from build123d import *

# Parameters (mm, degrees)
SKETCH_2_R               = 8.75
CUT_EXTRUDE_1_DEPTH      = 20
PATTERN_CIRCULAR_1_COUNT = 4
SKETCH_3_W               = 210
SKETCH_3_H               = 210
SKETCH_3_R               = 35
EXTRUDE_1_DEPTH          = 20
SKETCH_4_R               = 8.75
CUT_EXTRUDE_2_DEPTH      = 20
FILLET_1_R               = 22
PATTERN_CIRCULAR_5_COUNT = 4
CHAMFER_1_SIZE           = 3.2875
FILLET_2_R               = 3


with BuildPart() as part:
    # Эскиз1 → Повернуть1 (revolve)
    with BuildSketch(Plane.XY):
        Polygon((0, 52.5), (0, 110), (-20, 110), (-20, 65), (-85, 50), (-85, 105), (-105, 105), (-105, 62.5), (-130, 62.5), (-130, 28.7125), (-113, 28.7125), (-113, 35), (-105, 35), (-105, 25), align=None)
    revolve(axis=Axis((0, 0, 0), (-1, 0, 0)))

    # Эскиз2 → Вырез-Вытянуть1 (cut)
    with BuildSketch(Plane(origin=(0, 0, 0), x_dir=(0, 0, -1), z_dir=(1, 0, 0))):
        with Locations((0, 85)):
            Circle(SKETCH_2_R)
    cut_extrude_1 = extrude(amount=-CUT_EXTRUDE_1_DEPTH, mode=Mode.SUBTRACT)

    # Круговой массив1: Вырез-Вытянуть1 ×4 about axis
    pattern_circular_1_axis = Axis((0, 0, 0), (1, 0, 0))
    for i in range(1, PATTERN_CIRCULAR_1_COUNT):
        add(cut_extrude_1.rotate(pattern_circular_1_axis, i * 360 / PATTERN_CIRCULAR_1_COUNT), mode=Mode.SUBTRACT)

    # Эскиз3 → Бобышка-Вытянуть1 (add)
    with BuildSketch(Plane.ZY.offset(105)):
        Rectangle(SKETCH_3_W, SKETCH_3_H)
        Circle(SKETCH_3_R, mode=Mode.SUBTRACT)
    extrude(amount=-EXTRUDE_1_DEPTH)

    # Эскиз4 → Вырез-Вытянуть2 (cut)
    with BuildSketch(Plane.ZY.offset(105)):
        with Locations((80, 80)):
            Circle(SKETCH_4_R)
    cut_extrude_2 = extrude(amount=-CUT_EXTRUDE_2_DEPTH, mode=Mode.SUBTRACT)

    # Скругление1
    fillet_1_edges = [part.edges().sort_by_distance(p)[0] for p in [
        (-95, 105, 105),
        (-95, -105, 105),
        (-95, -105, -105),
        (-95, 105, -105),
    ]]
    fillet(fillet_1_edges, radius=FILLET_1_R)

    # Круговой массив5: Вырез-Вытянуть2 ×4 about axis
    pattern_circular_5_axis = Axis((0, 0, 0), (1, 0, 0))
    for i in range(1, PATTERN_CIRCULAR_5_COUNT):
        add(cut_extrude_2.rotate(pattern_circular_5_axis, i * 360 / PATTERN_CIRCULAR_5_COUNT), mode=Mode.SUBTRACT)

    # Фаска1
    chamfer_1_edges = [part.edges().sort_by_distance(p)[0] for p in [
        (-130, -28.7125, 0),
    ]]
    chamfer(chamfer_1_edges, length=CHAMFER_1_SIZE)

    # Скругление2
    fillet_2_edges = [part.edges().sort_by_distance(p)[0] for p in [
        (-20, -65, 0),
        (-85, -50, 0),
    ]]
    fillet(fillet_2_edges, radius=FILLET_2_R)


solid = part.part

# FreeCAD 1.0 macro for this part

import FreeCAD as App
import Part
import Sketcher
from FreeCAD import Vector
Q = App.Units.Quantity


def edges_at(feature, points):
    """Names of the edges that pass closest to the given points."""
    edges = feature.Shape.Edges
    near = lambda p: min(range(len(edges)), key=lambda i: edges[i].distToShape(Part.Vertex(*p))[0])
    return sorted({f"Edge{near(p) + 1}" for p in points})

doc = App.newDocument("Part")
params = doc.addObject("Spreadsheet::Sheet", "Params")
for row, (alias, value) in enumerate([
    ("sketch1_width", "20 mm"),
    ("sketch1_width2", "25 mm"),
    ("sketch1_width3", "17 mm"),
    ("sketch1_height", "45 mm"),
    ("sketch1_height2", "55 mm"),
    ("revolution_angle", "360 deg"),
    ("sketch2_diameter", "17.5 mm"),
    ("pocket1_length", "20 mm"),
    ("sketch3_diameter", "70 mm"),
    ("sketch3_width", "210 mm"),
    ("pad1_length", "20 mm"),
    ("sketch4_diameter", "17.5 mm"),
    ("pocket2_length", "20 mm"),
    ("fillet_radius", "22 mm"),
    ("chamfer_size", "3.2875 mm"),
    ("fillet2_radius", "3 mm"),
], start=1):
    params.set(f"A{row}", alias)
    params.set(f"B{row}", "=" + value)
    params.setAlias(f"B{row}", alias)

body = doc.addObject("PartDesign::Body", "Body")

sketch1 = doc.addObject("Sketcher::SketchObject", "Sketch")
body.addObject(sketch1)
sketch1.AttachmentSupport = (doc.XY_Plane, [""])
sketch1.MapMode = "FlatFace"
sketch1.addGeometry(Part.LineSegment(Vector(0, 52, 0), Vector(0, 110, 0)), False)
sketch1.addGeometry(Part.LineSegment(Vector(0, 110, 0), Vector(-20, 110, 0)), False)
sketch1.addGeometry(Part.LineSegment(Vector(-20, 110, 0), Vector(-20, 65, 0)), False)
sketch1.addGeometry(Part.LineSegment(Vector(-20, 65, 0), Vector(-85, 50, 0)), False)
sketch1.addGeometry(Part.LineSegment(Vector(-85, 50, 0), Vector(-85, 105, 0)), False)
sketch1.addGeometry(Part.LineSegment(Vector(-85, 105, 0), Vector(-105, 105, 0)), False)
sketch1.addGeometry(Part.LineSegment(Vector(-105, 105, 0), Vector(-105, 62, 0)), False)
sketch1.addGeometry(Part.LineSegment(Vector(-105, 62, 0), Vector(-130, 62, 0)), False)
sketch1.addGeometry(Part.LineSegment(Vector(-130, 62, 0), Vector(-130, 29, 0)), False)
sketch1.addGeometry(Part.LineSegment(Vector(-130, 29, 0), Vector(-113, 29, 0)), False)
sketch1.addGeometry(Part.LineSegment(Vector(-113, 29, 0), Vector(-113, 35, 0)), False)
sketch1.addGeometry(Part.LineSegment(Vector(-113, 35, 0), Vector(-105, 35, 0)), False)
sketch1.addGeometry(Part.LineSegment(Vector(-105, 35, 0), Vector(-105, 25, 0)), False)
sketch1.addGeometry(Part.LineSegment(Vector(-105, 25, 0), Vector(0, 52, 0)), False)
sketch1.addConstraint(Sketcher.Constraint("Coincident", 0, 2, 1, 1))
sketch1.addConstraint(Sketcher.Constraint("Coincident", 1, 2, 2, 1))
sketch1.addConstraint(Sketcher.Constraint("Coincident", 2, 2, 3, 1))
sketch1.addConstraint(Sketcher.Constraint("Coincident", 3, 2, 4, 1))
sketch1.addConstraint(Sketcher.Constraint("Coincident", 4, 2, 5, 1))
sketch1.addConstraint(Sketcher.Constraint("Coincident", 5, 2, 6, 1))
sketch1.addConstraint(Sketcher.Constraint("Coincident", 6, 2, 7, 1))
sketch1.addConstraint(Sketcher.Constraint("Coincident", 7, 2, 8, 1))
sketch1.addConstraint(Sketcher.Constraint("Coincident", 8, 2, 9, 1))
sketch1.addConstraint(Sketcher.Constraint("Coincident", 9, 2, 10, 1))
sketch1.addConstraint(Sketcher.Constraint("Coincident", 10, 2, 11, 1))
sketch1.addConstraint(Sketcher.Constraint("Coincident", 11, 2, 12, 1))
sketch1.addConstraint(Sketcher.Constraint("Coincident", 12, 2, 13, 1))
sketch1.addConstraint(Sketcher.Constraint("Coincident", 13, 2, 0, 1))
sketch1.addConstraint(Sketcher.Constraint("Vertical", 0))
sketch1.addConstraint(Sketcher.Constraint("Horizontal", 1))
sketch1.addConstraint(Sketcher.Constraint("Vertical", 2))
sketch1.addConstraint(Sketcher.Constraint("Vertical", 4))
sketch1.addConstraint(Sketcher.Constraint("Horizontal", 5))
sketch1.addConstraint(Sketcher.Constraint("Vertical", 6))
sketch1.addConstraint(Sketcher.Constraint("Horizontal", 7))
sketch1.addConstraint(Sketcher.Constraint("Vertical", 8))
sketch1.addConstraint(Sketcher.Constraint("Horizontal", 9))
sketch1.addConstraint(Sketcher.Constraint("Vertical", 10))
sketch1.addConstraint(Sketcher.Constraint("Horizontal", 11))
sketch1.addConstraint(Sketcher.Constraint("Vertical", 12))
sketch1.addConstraint(Sketcher.Constraint("PointOnObject", 0, 2, -2))
sketch1.addConstraint(Sketcher.Constraint("Vertical", 6, 2, 11, 2))
sketch1.addConstraint(Sketcher.Constraint("Equal", 1, 5))
sketch1.addConstraint(Sketcher.Constraint("DistanceX", 1, 2, 1, 1, Q("20 mm")))
sketch1.addConstraint(Sketcher.Constraint("DistanceX", 7, 2, 7, 1, Q("25 mm")))
sketch1.addConstraint(Sketcher.Constraint("DistanceX", 9, 1, 9, 2, Q("17 mm")))
sketch1.addConstraint(Sketcher.Constraint("DistanceY", 2, 2, 2, 1, Q("45 mm")))
sketch1.addConstraint(Sketcher.Constraint("DistanceY", 4, 1, 4, 2, Q("55 mm")))
sketch1.addConstraint(Sketcher.Constraint("DistanceY", 12, 2, 12, 1, Q("10 mm")))
sketch1.addConstraint(Sketcher.Constraint("DistanceY", 0, 1, 0, 2, Q("57.5 mm")))
sketch1.addConstraint(Sketcher.Constraint("DistanceY", 6, 2, 6, 1, Q("42.5 mm")))
sketch1.addConstraint(Sketcher.Constraint("DistanceY", -1, 1, 0, 2, Q("110 mm")))
sketch1.addConstraint(Sketcher.Constraint("DistanceX", 3, 2, -1, 1, Q("85 mm")))
sketch1.addConstraint(Sketcher.Constraint("DistanceY", -1, 1, 3, 2, Q("50 mm")))
sketch1.addConstraint(Sketcher.Constraint("DistanceY", -1, 1, 10, 2, Q("35 mm")))
sketch1.addConstraint(Sketcher.Constraint("DistanceY", 8, 2, 8, 1, Q("33.7875 mm")))
sketch1.setExpression("Constraints[29]", "Params.sketch1_width")
sketch1.setExpression("Constraints[30]", "Params.sketch1_width2")
sketch1.setExpression("Constraints[31]", "Params.sketch1_width3")
sketch1.setExpression("Constraints[32]", "Params.sketch1_height")
sketch1.setExpression("Constraints[33]", "Params.sketch1_height2")
revolution = doc.addObject("PartDesign::Revolution", "Revolution")
body.addObject(revolution)
revolution.Profile = sketch1
revolution.ReferenceAxis = (sketch1, ["H_Axis"])
revolution.setExpression("Angle", "Params.revolution_angle")

sketch2 = doc.addObject("Sketcher::SketchObject", "Sketch001")
body.addObject(sketch2)
sketch2.AttachmentSupport = (doc.YZ_Plane, [""])
sketch2.MapMode = "FlatFace"
sketch2.addGeometry(Part.Circle(Vector(85, 0, 0), Vector(0, 0, 1), 9), False)
sketch2.addConstraint(Sketcher.Constraint("PointOnObject", 0, 3, -1))
sketch2.addConstraint(Sketcher.Constraint("Diameter", 0, Q("17.5 mm")))
sketch2.addConstraint(Sketcher.Constraint("DistanceX", -1, 1, 0, 3, Q("85 mm")))
sketch2.setExpression("Constraints[1]", "Params.sketch2_diameter")
pocket1 = doc.addObject("PartDesign::Pocket", "Pocket")
body.addObject(pocket1)
pocket1.Profile = sketch2
pocket1.setExpression("Length", "Params.pocket1_length")
doc.recompute()

polarpattern = doc.addObject("PartDesign::PolarPattern", "PolarPattern")
body.addObject(polarpattern)
polarpattern.Originals = [pocket1]
polarpattern.Axis = (doc.X_Axis, [""])
polarpattern.Angle = 360
polarpattern.Occurrences = 4
body.Tip = polarpattern

sketch3 = doc.addObject("Sketcher::SketchObject", "Sketch002")
body.addObject(sketch3)
sketch3.AttachmentSupport = (doc.YZ_Plane, [""])
sketch3.MapMode = "FlatFace"
sketch3.AttachmentOffset = App.Placement(Vector(0, 0, -105), App.Rotation())
sketch3.addGeometry(Part.LineSegment(Vector(105, -105, 0), Vector(-105, -105, 0)), False)
sketch3.addGeometry(Part.LineSegment(Vector(-105, -105, 0), Vector(-105, 105, 0)), False)
sketch3.addGeometry(Part.LineSegment(Vector(-105, 105, 0), Vector(105, 105, 0)), False)
sketch3.addGeometry(Part.LineSegment(Vector(105, 105, 0), Vector(105, -105, 0)), False)
sketch3.addGeometry(Part.Circle(Vector(0, 0, 0), Vector(0, 0, 1), 35), False)
sketch3.addConstraint(Sketcher.Constraint("Coincident", 0, 2, 1, 1))
sketch3.addConstraint(Sketcher.Constraint("Coincident", 1, 2, 2, 1))
sketch3.addConstraint(Sketcher.Constraint("Coincident", 2, 2, 3, 1))
sketch3.addConstraint(Sketcher.Constraint("Coincident", 3, 2, 0, 1))
sketch3.addConstraint(Sketcher.Constraint("Horizontal", 0))
sketch3.addConstraint(Sketcher.Constraint("Vertical", 1))
sketch3.addConstraint(Sketcher.Constraint("Horizontal", 2))
sketch3.addConstraint(Sketcher.Constraint("Vertical", 3))
sketch3.addConstraint(Sketcher.Constraint("Coincident", 4, 3, -1, 1))
sketch3.addConstraint(Sketcher.Constraint("Symmetric", 0, 2, 2, 2, -1, 1))
sketch3.addConstraint(Sketcher.Constraint("Equal", 2, 1))
sketch3.addConstraint(Sketcher.Constraint("Diameter", 4, Q("70 mm")))
sketch3.addConstraint(Sketcher.Constraint("DistanceX", 0, 2, 0, 1, Q("210 mm")))
sketch3.setExpression("Constraints[11]", "Params.sketch3_diameter")
sketch3.setExpression("Constraints[12]", "Params.sketch3_width")
pad1 = doc.addObject("PartDesign::Pad", "Pad")
body.addObject(pad1)
pad1.Profile = sketch3
pad1.setExpression("Length", "Params.pad1_length")

sketch4 = doc.addObject("Sketcher::SketchObject", "Sketch003")
body.addObject(sketch4)
sketch4.AttachmentSupport = (doc.YZ_Plane, [""])
sketch4.MapMode = "FlatFace"
sketch4.AttachmentOffset = App.Placement(Vector(0, 0, -105), App.Rotation())
sketch4.addGeometry(Part.Circle(Vector(80, 80, 0), Vector(0, 0, 1), 9), False)
sketch4.addConstraint(Sketcher.Constraint("Diameter", 0, Q("17.5 mm")))
sketch4.addConstraint(Sketcher.Constraint("DistanceX", -1, 1, 0, 3, Q("80 mm")))
sketch4.addConstraint(Sketcher.Constraint("DistanceY", -1, 1, 0, 3, Q("80 mm")))
sketch4.setExpression("Constraints[0]", "Params.sketch4_diameter")
pocket2 = doc.addObject("PartDesign::Pocket", "Pocket001")
body.addObject(pocket2)
pocket2.Profile = sketch4
pocket2.setExpression("Length", "Params.pocket2_length")
pocket2.Reversed = True
doc.recompute()

fillet = doc.addObject("PartDesign::Fillet", "Fillet")
body.addObject(fillet)
fillet.Base = (pocket2, edges_at(pocket2, [
    (-95, 105, 105),
    (-95, -105, 105),
    (-95, -105, -105),
    (-95, 105, -105),
]))
fillet.setExpression("Radius", "Params.fillet_radius")
doc.recompute()

polarpattern2 = doc.addObject("PartDesign::PolarPattern", "PolarPattern001")
body.addObject(polarpattern2)
polarpattern2.Originals = [pocket2]
polarpattern2.Axis = (doc.X_Axis, [""])
polarpattern2.Angle = 360
polarpattern2.Occurrences = 4
body.Tip = polarpattern2
doc.recompute()

chamfer = doc.addObject("PartDesign::Chamfer", "Chamfer")
body.addObject(chamfer)
chamfer.Base = (polarpattern2, edges_at(polarpattern2, [(-130, -28.712, 0)]))
chamfer.setExpression("Size", "Params.chamfer_size")
doc.recompute()

fillet2 = doc.addObject("PartDesign::Fillet", "Fillet001")
body.addObject(fillet2)
fillet2.Base = (chamfer, edges_at(chamfer, [(-20, -65, 0), (-85, -50, 0)]))
fillet2.setExpression("Radius", "Params.fillet2_radius")

doc.recompute()
